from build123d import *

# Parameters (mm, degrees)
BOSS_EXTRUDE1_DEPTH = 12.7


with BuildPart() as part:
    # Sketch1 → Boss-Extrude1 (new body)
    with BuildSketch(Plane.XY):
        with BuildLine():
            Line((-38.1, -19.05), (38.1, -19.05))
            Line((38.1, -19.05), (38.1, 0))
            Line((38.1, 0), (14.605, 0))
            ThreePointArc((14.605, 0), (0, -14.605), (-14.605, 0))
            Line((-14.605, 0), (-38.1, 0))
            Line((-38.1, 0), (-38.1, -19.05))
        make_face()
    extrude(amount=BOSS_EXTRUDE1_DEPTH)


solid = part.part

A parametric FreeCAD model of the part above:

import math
import FreeCAD as App
import Part
import Sketcher

V = App.Vector
Q = App.Units.Quantity

doc = App.newDocument("Part")
body = doc.addObject("PartDesign::Body", "Body")

# Sketch on XY plane
sketch1 = body.newObject("Sketcher::SketchObject", "Sketch")
sketch1.AttachmentSupport = (doc.getObject("XY_Plane"), [""])
sketch1.MapMode = "FlatFace"
sketch1.addGeometry([
    Part.LineSegment(V(-38, -19, 0), V(38, -19, 0)),  # 0
    Part.LineSegment(V(38, -19, 0), V(38, 0, 0)),  # 1
    Part.LineSegment(V(38, 0, 0), V(15, 0, 0)),  # 2
    Part.ArcOfCircle(Part.Circle(V(0, 0, 0), V(0, 0, 1), 15), math.radians(180), math.radians(360)),  # 3
    Part.LineSegment(V(-15, 0, 0), V(-38, 0, 0)),  # 4
    Part.LineSegment(V(-38, 0, 0), V(-38, -19, 0)),  # 5
], False)
sketch1.addConstraint([
    Sketcher.Constraint("Coincident", 0, 2, 1, 1),
    Sketcher.Constraint("Coincident", 1, 2, 2, 1),
    Sketcher.Constraint("Coincident", 2, 2, 3, 2),
    Sketcher.Constraint("Coincident", 3, 1, 4, 1),
    Sketcher.Constraint("Coincident", 4, 2, 5, 1),
    Sketcher.Constraint("Coincident", 5, 2, 0, 1),
    Sketcher.Constraint("Horizontal", 0),
    Sketcher.Constraint("Vertical", 1),
    Sketcher.Constraint("Horizontal", 2),
    Sketcher.Constraint("Horizontal", 4),
    Sketcher.Constraint("Vertical", 5),
    Sketcher.Constraint("Coincident", 3, 3, -1, 1),
    Sketcher.Constraint("Symmetric", 1, 2, 4, 2, -1, 1),
    Sketcher.Constraint("PointOnObject", 1, 2, -1),
    Sketcher.Constraint("DistanceX", 0, 1, 0, 2, Q("3 in")),
    Sketcher.Constraint("Radius", 3, Q("0.575 in")),
    Sketcher.Constraint("DistanceY", 1, 1, 1, 2, Q("0.75 in")),
])
pad1 = body.newObject("PartDesign::Pad", "Pad")
pad1.Profile = sketch1
pad1.Length = Q("0.5 in")

doc.recompute()
